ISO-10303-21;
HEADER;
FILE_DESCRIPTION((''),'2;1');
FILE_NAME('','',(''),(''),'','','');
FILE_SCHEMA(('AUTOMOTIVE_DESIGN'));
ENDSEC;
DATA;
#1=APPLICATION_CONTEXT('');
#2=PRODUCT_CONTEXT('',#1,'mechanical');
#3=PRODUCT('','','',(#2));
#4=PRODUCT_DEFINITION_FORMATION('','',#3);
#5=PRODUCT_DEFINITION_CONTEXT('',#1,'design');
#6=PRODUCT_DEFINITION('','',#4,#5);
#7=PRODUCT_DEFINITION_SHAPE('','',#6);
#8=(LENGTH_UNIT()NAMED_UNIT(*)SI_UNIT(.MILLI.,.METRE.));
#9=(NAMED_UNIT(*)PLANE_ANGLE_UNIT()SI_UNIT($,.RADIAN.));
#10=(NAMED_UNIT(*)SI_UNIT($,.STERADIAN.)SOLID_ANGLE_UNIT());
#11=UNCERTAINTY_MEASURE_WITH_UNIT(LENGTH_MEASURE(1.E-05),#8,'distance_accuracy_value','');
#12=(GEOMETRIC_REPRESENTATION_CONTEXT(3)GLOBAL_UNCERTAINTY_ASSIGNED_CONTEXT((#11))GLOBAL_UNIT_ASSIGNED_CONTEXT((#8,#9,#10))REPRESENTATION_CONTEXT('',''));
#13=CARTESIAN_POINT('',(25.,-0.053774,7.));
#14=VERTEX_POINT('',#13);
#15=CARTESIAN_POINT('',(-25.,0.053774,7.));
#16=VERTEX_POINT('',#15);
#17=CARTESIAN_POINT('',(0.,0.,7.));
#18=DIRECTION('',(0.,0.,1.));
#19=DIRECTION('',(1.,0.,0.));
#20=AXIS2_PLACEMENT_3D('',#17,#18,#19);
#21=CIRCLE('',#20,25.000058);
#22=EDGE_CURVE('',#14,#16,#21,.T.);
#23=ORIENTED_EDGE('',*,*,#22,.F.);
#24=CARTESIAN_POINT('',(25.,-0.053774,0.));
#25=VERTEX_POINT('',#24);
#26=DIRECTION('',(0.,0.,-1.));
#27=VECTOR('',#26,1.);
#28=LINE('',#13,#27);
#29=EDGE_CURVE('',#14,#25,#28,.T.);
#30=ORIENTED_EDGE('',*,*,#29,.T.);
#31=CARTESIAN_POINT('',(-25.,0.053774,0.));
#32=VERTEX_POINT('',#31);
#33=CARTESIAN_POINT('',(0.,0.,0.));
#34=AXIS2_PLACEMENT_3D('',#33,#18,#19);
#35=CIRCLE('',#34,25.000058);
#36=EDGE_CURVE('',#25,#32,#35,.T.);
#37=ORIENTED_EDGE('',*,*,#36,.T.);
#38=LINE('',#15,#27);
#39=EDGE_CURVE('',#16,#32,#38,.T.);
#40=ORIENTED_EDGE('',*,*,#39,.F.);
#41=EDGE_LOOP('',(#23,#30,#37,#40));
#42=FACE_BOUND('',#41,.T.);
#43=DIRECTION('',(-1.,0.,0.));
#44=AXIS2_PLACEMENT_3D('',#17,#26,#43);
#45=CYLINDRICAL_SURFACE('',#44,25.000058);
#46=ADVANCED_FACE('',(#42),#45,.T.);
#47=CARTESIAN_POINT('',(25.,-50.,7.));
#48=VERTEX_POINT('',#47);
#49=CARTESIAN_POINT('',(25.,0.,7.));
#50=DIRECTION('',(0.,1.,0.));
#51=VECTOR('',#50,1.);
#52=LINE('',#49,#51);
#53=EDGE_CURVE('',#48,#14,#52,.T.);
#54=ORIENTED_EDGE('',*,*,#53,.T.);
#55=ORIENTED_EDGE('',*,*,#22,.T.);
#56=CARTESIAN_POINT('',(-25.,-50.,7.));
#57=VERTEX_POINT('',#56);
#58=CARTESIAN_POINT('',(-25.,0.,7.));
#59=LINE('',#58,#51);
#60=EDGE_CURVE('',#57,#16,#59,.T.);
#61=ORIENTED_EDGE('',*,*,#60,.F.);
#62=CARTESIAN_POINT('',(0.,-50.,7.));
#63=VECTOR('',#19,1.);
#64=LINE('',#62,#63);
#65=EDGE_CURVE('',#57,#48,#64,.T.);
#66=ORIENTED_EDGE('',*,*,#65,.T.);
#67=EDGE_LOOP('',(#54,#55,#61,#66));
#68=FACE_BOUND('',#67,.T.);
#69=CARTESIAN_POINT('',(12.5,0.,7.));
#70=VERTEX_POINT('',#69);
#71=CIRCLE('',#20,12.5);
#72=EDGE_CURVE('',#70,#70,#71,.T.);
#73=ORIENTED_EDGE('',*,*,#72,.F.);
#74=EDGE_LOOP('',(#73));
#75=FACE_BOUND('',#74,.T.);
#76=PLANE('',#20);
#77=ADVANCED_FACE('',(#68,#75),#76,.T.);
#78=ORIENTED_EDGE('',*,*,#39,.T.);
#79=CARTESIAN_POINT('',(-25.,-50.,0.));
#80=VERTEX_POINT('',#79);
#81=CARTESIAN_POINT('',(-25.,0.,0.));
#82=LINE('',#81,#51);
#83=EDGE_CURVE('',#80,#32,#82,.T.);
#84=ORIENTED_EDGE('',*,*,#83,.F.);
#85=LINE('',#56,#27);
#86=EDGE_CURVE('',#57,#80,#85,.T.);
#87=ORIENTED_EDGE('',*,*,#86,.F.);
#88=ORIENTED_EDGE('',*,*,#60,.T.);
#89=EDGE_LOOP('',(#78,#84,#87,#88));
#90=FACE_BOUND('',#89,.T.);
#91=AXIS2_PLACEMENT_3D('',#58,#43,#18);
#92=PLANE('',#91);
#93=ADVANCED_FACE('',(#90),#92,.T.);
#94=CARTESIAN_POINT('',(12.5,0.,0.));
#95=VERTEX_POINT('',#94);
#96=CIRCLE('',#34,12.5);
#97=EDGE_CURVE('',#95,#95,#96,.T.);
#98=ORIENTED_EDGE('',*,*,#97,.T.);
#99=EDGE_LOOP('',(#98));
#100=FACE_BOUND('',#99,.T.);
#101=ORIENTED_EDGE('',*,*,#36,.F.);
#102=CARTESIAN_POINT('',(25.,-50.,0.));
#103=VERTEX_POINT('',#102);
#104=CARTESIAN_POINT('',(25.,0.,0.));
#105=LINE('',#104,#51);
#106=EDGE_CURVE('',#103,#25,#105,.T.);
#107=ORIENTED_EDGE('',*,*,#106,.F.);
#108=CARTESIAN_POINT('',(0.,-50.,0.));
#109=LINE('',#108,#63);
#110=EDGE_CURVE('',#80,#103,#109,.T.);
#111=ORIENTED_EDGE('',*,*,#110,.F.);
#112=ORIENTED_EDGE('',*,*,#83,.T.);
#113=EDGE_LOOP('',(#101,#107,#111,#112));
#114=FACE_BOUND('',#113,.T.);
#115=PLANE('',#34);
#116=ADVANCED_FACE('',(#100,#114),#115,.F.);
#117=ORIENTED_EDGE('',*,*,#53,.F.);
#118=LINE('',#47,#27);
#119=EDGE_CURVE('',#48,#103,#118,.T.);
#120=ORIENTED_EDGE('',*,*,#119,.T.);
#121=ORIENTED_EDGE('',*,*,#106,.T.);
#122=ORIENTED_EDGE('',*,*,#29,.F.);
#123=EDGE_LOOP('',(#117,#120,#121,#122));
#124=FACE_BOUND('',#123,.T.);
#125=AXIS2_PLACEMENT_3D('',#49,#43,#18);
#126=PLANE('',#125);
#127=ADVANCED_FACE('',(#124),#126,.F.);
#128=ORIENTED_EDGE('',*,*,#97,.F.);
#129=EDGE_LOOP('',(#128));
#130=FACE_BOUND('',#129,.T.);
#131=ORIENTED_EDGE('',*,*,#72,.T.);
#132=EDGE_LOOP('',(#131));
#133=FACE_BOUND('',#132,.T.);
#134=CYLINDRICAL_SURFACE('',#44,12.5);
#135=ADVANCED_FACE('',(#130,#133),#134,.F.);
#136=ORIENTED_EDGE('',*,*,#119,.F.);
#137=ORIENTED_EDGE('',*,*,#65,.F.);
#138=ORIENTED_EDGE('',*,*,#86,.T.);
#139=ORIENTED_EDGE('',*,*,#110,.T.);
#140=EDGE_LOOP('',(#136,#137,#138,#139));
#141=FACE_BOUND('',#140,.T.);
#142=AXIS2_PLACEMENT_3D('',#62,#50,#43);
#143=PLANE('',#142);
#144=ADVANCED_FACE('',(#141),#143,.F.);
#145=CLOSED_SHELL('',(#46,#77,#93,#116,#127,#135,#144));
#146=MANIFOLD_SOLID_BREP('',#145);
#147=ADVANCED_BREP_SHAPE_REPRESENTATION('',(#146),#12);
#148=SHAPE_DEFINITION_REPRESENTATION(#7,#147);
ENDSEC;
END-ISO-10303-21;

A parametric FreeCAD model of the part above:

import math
import FreeCAD as App
import Part
import Sketcher
Q = App.Units.Quantity

doc = App.newDocument("Part")
body = doc.addObject("PartDesign::Body", "Body")

# Sketch on XY plane
sketch1 = body.newObject("Sketcher::SketchObject", "Sketch")
sketch1.AttachmentSupport = (doc.getObject("XY_Plane"), [""])
sketch1.MapMode = "FlatFace"
sketch1.addGeometry(Part.LineSegment(App.Vector(-25, -50, 0), App.Vector(25, -50, 0)), False)
sketch1.addGeometry(Part.LineSegment(App.Vector(25, -50, 0), App.Vector(25, 0, 0)), False)
sketch1.addGeometry(Part.ArcOfCircle(Part.Circle(App.Vector(0, 0, 0), App.Vector(0, 0, 1), 25), math.radians(0), math.radians(180)), False)
sketch1.addGeometry(Part.LineSegment(App.Vector(-25, 0, 0), App.Vector(-25, -50, 0)), False)
sketch1.addGeometry(Part.Circle(App.Vector(0, 0, 0), App.Vector(0, 0, 1), 12), False)
sketch1.addConstraint(Sketcher.Constraint("Coincident", 0, 2, 1, 1))
sketch1.addConstraint(Sketcher.Constraint("Coincident", 1, 2, 2, 1))
sketch1.addConstraint(Sketcher.Constraint("Coincident", 2, 2, 3, 1))
sketch1.addConstraint(Sketcher.Constraint("Coincident", 3, 2, 0, 1))
sketch1.addConstraint(Sketcher.Constraint("Horizontal", 0))
sketch1.addConstraint(Sketcher.Constraint("Vertical", 1))
sketch1.addConstraint(Sketcher.Constraint("Vertical", 3))
sketch1.addConstraint(Sketcher.Constraint("Coincident", 2, 3, -1, 1))
sketch1.addConstraint(Sketcher.Constraint("Coincident", 4, 3, -1, 1))
sketch1.addConstraint(Sketcher.Constraint("Diameter", 4, Q("25 mm")))
sketch1.addConstraint(Sketcher.Constraint("DistanceX", 0, 1, 0, 2, Q("50 mm")))
sketch1.addConstraint(Sketcher.Constraint("DistanceY", 0, 2, -1, 1, Q("50 mm")))
sketch1.addConstraint(Sketcher.Constraint("DistanceY", 1, 1, 1, 2, Q("49.946226 mm")))
sketch1.addConstraint(Sketcher.Constraint("DistanceY", 3, 2, 3, 1, Q("50.053774 mm")))
pad1 = body.newObject("PartDesign::Pad", "Pad")
pad1.Profile = sketch1
pad1.Length = 7

doc.recompute()
